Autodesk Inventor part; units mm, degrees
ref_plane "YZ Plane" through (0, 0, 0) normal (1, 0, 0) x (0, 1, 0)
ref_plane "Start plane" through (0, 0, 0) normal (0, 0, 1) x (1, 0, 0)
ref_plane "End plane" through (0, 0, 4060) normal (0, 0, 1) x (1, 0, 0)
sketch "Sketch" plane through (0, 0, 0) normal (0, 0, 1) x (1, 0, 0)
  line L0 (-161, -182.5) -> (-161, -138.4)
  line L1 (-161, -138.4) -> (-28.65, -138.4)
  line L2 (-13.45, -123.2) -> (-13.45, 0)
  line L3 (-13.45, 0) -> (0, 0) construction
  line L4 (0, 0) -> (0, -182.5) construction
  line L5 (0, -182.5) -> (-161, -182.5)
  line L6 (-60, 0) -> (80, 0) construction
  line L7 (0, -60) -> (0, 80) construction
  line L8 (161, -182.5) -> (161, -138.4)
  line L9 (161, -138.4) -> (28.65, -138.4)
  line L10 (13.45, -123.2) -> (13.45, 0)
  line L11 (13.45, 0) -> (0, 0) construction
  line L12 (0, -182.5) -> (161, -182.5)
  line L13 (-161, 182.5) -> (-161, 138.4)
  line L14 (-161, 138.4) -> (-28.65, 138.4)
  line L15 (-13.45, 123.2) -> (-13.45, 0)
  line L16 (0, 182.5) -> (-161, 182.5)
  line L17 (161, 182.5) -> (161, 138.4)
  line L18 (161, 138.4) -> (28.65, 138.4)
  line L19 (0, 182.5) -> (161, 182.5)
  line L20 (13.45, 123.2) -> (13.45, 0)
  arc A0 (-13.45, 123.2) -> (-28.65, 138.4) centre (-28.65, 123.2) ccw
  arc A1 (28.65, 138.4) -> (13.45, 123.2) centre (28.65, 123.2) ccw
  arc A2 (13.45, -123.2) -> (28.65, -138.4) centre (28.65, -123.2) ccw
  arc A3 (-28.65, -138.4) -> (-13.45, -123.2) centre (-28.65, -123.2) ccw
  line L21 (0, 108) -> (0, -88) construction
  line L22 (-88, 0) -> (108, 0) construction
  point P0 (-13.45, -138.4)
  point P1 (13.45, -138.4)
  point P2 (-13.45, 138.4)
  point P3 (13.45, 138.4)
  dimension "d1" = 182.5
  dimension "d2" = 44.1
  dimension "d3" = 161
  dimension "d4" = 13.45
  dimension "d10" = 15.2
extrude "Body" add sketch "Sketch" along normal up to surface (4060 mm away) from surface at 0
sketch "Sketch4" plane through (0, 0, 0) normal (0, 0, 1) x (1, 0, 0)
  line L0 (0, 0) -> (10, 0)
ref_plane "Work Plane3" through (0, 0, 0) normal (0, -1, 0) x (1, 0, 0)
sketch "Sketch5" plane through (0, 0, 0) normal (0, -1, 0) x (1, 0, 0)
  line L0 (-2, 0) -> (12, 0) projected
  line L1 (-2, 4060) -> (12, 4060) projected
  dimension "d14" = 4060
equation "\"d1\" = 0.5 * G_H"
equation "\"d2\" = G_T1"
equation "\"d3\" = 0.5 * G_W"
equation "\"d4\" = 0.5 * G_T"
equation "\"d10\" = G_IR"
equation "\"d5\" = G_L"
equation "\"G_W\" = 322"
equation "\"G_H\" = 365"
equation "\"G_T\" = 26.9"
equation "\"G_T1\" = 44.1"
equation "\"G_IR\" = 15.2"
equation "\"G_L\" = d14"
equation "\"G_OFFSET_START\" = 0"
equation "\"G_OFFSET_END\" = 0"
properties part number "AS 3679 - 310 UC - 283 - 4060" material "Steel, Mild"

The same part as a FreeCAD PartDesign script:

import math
import FreeCAD as App
import Part
import Sketcher

V = App.Vector

doc = App.newDocument("Part")
params = doc.addObject("Spreadsheet::Sheet", "Params")
for row, (alias, value) in enumerate([
    ("sketch1_radius", "15.2 mm"),
    ("sketch1_height", "44.1 mm"),
    ("pad1_length", "4060 mm"),
], start=1):
    params.set(f"A{row}", alias)
    params.set(f"B{row}", "=" + value)
    params.setAlias(f"B{row}", alias)

body = doc.addObject("PartDesign::Body", "Body")

sketch1 = body.newObject("Sketcher::SketchObject", "Sketch")
sketch1.AttachmentSupport = (doc.getObject("XY_Plane"), [""])
sketch1.MapMode = "FlatFace"
sketch1.addGeometry(Part.LineSegment(V(-161, -138, 0), V(-161, -182, 0)), False)
sketch1.addGeometry(Part.LineSegment(V(-161, -182, 0), V(161, -182, 0)), False)
sketch1.addGeometry(Part.LineSegment(V(161, -182, 0), V(161, -138, 0)), False)
sketch1.addGeometry(Part.LineSegment(V(161, -138, 0), V(29, -138, 0)), False)
sketch1.addGeometry(Part.ArcOfCircle(Part.Circle(V(29, -123, 0), V(0, 0, 1), 15), math.radians(180), math.radians(270)), False)
sketch1.addGeometry(Part.LineSegment(V(13, -123, 0), V(13, 123, 0)), False)
sketch1.addGeometry(Part.ArcOfCircle(Part.Circle(V(29, 123, 0), V(0, 0, 1), 15), math.radians(90), math.radians(180)), False)
sketch1.addGeometry(Part.LineSegment(V(29, 138, 0), V(161, 138, 0)), False)
sketch1.addGeometry(Part.LineSegment(V(161, 138, 0), V(161, 182, 0)), False)
sketch1.addGeometry(Part.LineSegment(V(161, 182, 0), V(-161, 182, 0)), False)
sketch1.addGeometry(Part.LineSegment(V(-161, 182, 0), V(-161, 138, 0)), False)
sketch1.addGeometry(Part.LineSegment(V(-161, 138, 0), V(-29, 138, 0)), False)
sketch1.addGeometry(Part.ArcOfCircle(Part.Circle(V(-29, 123, 0), V(0, 0, 1), 15), math.radians(0), math.radians(90)), False)
sketch1.addGeometry(Part.LineSegment(V(-13, 123, 0), V(-13, -123, 0)), False)
sketch1.addGeometry(Part.ArcOfCircle(Part.Circle(V(-29, -123, 0), V(0, 0, 1), 15), math.radians(-90), math.radians(0)), False)
sketch1.addGeometry(Part.LineSegment(V(-29, -138, 0), V(-161, -138, 0)), False)
sketch1.addConstraint(Sketcher.Constraint("Coincident", 0, 2, 1, 1))
sketch1.addConstraint(Sketcher.Constraint("Coincident", 1, 2, 2, 1))
sketch1.addConstraint(Sketcher.Constraint("Coincident", 2, 2, 3, 1))
sketch1.addConstraint(Sketcher.Constraint("Tangent", 3, 2, 4, 2))
sketch1.addConstraint(Sketcher.Constraint("Tangent", 4, 1, 5, 1))
sketch1.addConstraint(Sketcher.Constraint("Tangent", 5, 2, 6, 2))
sketch1.addConstraint(Sketcher.Constraint("Tangent", 6, 1, 7, 1))
sketch1.addConstraint(Sketcher.Constraint("Coincident", 7, 2, 8, 1))
sketch1.addConstraint(Sketcher.Constraint("Coincident", 8, 2, 9, 1))
sketch1.addConstraint(Sketcher.Constraint("Coincident", 9, 2, 10, 1))
sketch1.addConstraint(Sketcher.Constraint("Coincident", 10, 2, 11, 1))
sketch1.addConstraint(Sketcher.Constraint("Tangent", 11, 2, 12, 2))
sketch1.addConstraint(Sketcher.Constraint("Tangent", 12, 1, 13, 1))
sketch1.addConstraint(Sketcher.Constraint("Tangent", 13, 2, 14, 2))
sketch1.addConstraint(Sketcher.Constraint("Tangent", 14, 1, 15, 1))
sketch1.addConstraint(Sketcher.Constraint("Coincident", 15, 2, 0, 1))
sketch1.addConstraint(Sketcher.Constraint("Vertical", 0))
sketch1.addConstraint(Sketcher.Constraint("Horizontal", 1))
sketch1.addConstraint(Sketcher.Constraint("Vertical", 2))
sketch1.addConstraint(Sketcher.Constraint("Horizontal", 3))
sketch1.addConstraint(Sketcher.Constraint("Vertical", 5))
sketch1.addConstraint(Sketcher.Constraint("Horizontal", 7))
sketch1.addConstraint(Sketcher.Constraint("Vertical", 8))
sketch1.addConstraint(Sketcher.Constraint("Horizontal", 9))
sketch1.addConstraint(Sketcher.Constraint("Vertical", 10))
sketch1.addConstraint(Sketcher.Constraint("Horizontal", 11))
sketch1.addConstraint(Sketcher.Constraint("Vertical", 13))
sketch1.addConstraint(Sketcher.Constraint("Horizontal", 15))
sketch1.addConstraint(Sketcher.Constraint("Equal", 4, 6))
sketch1.addConstraint(Sketcher.Constraint("Equal", 6, 12))
sketch1.addConstraint(Sketcher.Constraint("Equal", 12, 14))
sketch1.addConstraint(Sketcher.Constraint("Symmetric", 4, 3, 12, 3, -1, 1))
sketch1.addConstraint(Sketcher.Constraint("Symmetric", 0, 2, 8, 2, -1, 1))
sketch1.addConstraint(Sketcher.Constraint("Symmetric", 7, 2, 10, 2, -2))
sketch1.addConstraint(Sketcher.Constraint("Symmetric", 2, 2, 15, 2, -2))
sketch1.addConstraint(Sketcher.Constraint("Radius", 4, 15.2))
sketch1.addConstraint(Sketcher.Constraint("DistanceY", 0, 2, 0, 1, 44.1))
sketch1.addConstraint(Sketcher.Constraint("DistanceX", 0, 2, -1, 1, 161.0))
sketch1.addConstraint(Sketcher.Constraint("DistanceY", 0, 2, -1, 1, 182.5))
sketch1.addConstraint(Sketcher.Constraint("DistanceX", -1, 1, 4, 1, 13.45))
sketch1.setExpression("Constraints[35]", "Params.sketch1_radius")
sketch1.setExpression("Constraints[36]", "Params.sketch1_height")
pad1 = body.newObject("PartDesign::Pad", "Pad")
pad1.Profile = sketch1
pad1.setExpression("Length", "Params.pad1_length")

doc.recompute()
